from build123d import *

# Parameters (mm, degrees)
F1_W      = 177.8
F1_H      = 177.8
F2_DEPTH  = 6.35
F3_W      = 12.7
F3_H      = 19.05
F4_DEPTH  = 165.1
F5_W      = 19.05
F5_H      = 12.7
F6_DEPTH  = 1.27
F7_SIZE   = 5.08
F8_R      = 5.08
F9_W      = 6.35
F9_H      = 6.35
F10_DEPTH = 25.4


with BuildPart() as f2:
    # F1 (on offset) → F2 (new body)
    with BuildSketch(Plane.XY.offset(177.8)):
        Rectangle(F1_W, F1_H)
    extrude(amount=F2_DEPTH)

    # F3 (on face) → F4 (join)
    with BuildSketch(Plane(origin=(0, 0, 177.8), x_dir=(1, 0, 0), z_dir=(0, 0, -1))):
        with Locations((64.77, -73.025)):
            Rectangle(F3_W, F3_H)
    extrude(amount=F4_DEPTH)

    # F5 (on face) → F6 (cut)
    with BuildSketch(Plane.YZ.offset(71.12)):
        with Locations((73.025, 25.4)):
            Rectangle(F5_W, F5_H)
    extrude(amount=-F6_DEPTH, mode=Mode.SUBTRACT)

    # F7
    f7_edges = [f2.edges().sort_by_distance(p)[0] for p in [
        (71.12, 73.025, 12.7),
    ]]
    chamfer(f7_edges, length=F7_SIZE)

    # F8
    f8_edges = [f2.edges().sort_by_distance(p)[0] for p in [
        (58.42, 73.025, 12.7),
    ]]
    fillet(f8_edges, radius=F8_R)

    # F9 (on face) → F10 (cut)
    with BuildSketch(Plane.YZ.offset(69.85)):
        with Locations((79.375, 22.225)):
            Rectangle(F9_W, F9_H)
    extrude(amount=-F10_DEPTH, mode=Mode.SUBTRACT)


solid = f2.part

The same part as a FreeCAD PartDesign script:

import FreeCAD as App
import Part
import Sketcher

V = App.Vector
Q = App.Units.Quantity


def edges_at(feature, points):
    """Names of the edges that pass closest to the given points."""
    edges = feature.Shape.Edges
    near = lambda p: min(range(len(edges)), key=lambda i: edges[i].distToShape(Part.Vertex(*p))[0])
    return sorted({f"Edge{near(p) + 1}" for p in points})

doc = App.newDocument("Part")
body = doc.addObject("PartDesign::Body", "Body")

sketch1 = body.newObject("Sketcher::SketchObject", "Sketch")
sketch1.AttachmentSupport = (doc.getObject("XY_Plane"), [""])
sketch1.MapMode = "FlatFace"
sketch1.AttachmentOffset = App.Placement(V(0, 0, 7 * 25.4), App.Rotation())
sketch1.addGeometry([
    Part.LineSegment(V(-89, 89, 0), V(-89, -89, 0)),
    Part.LineSegment(V(-89, -89, 0), V(89, -89, 0)),
    Part.LineSegment(V(89, -89, 0), V(89, 89, 0)),
    Part.LineSegment(V(89, 89, 0), V(-89, 89, 0)),
], False)
sketch1.addConstraint([
    Sketcher.Constraint("Coincident", 0, 2, 1, 1),
    Sketcher.Constraint("Coincident", 1, 2, 2, 1),
    Sketcher.Constraint("Coincident", 2, 2, 3, 1),
    Sketcher.Constraint("Coincident", 3, 2, 0, 1),
    Sketcher.Constraint("Vertical", 0),
    Sketcher.Constraint("Horizontal", 1),
    Sketcher.Constraint("Vertical", 2),
    Sketcher.Constraint("Horizontal", 3),
    Sketcher.Constraint("Symmetric", 0, 2, 2, 2, -1, 1),
    Sketcher.Constraint("Equal", 3, 0),
    Sketcher.Constraint("DistanceX", 1, 1, 1, 2, Q("7 in")),
])
pad1 = body.newObject("PartDesign::Pad", "Pad")
pad1.Profile = sketch1
pad1.Length = Q("0.25 in")

sketch2 = body.newObject("Sketcher::SketchObject", "Sketch001")
sketch2.AttachmentSupport = (doc.getObject("XY_Plane"), [""])
sketch2.MapMode = "FlatFace"
sketch2.AttachmentOffset = App.Placement(V(0, 0, 7 * 25.4), App.Rotation())
sketch2.addGeometry([
    Part.LineSegment(V(58, 64, 0), V(58, 83, 0)),
    Part.LineSegment(V(58, 83, 0), V(71, 83, 0)),
    Part.LineSegment(V(71, 83, 0), V(71, 64, 0)),
    Part.LineSegment(V(71, 64, 0), V(58, 64, 0)),
], False)
sketch2.addConstraint([
    Sketcher.Constraint("Coincident", 0, 2, 1, 1),
    Sketcher.Constraint("Coincident", 1, 2, 2, 1),
    Sketcher.Constraint("Coincident", 2, 2, 3, 1),
    Sketcher.Constraint("Coincident", 3, 2, 0, 1),
    Sketcher.Constraint("Vertical", 0),
    Sketcher.Constraint("Horizontal", 1),
    Sketcher.Constraint("Vertical", 2),
    Sketcher.Constraint("Horizontal", 3),
    Sketcher.Constraint("DistanceX", 1, 1, 1, 2, Q("0.5 in")),
    Sketcher.Constraint("DistanceY", 0, 1, 0, 2, Q("0.75 in")),
    Sketcher.Constraint("DistanceX", -1, 1, 0, 2, Q("2.3 in")),
    Sketcher.Constraint("DistanceY", -1, 1, 2, 2, Q("2.5 in")),
])
pad2 = body.newObject("PartDesign::Pad", "Pad001")
pad2.Profile = sketch2
pad2.Length = Q("6.5 in")
pad2.Reversed = True

sketch3 = body.newObject("Sketcher::SketchObject", "Sketch002")
sketch3.AttachmentSupport = (doc.getObject("YZ_Plane"), [""])
sketch3.MapMode = "FlatFace"
sketch3.AttachmentOffset = App.Placement(V(0, 0, 2.8 * 25.4), App.Rotation())
sketch3.addGeometry([
    Part.LineSegment(V(64, 32, 0), V(64, 19, 0)),
    Part.LineSegment(V(64, 19, 0), V(83, 19, 0)),
    Part.LineSegment(V(83, 19, 0), V(83, 32, 0)),
    Part.LineSegment(V(83, 32, 0), V(64, 32, 0)),
], False)
sketch3.addConstraint([
    Sketcher.Constraint("Coincident", 0, 2, 1, 1),
    Sketcher.Constraint("Coincident", 1, 2, 2, 1),
    Sketcher.Constraint("Coincident", 2, 2, 3, 1),
    Sketcher.Constraint("Coincident", 3, 2, 0, 1),
    Sketcher.Constraint("Vertical", 0),
    Sketcher.Constraint("Horizontal", 1),
    Sketcher.Constraint("Vertical", 2),
    Sketcher.Constraint("Horizontal", 3),
    Sketcher.Constraint("DistanceY", 0, 2, 0, 1, Q("0.5 in")),
    Sketcher.Constraint("DistanceX", 1, 1, 1, 2, Q("0.75 in")),
    Sketcher.Constraint("DistanceX", -1, 1, 0, 2, Q("2.5 in")),
    Sketcher.Constraint("DistanceY", -1, 1, 0, 2, Q("0.75 in")),
])
pocket1 = body.newObject("PartDesign::Pocket", "Pocket")
pocket1.Profile = sketch3
pocket1.Length = Q("0.05 in")
doc.recompute()

chamfer = body.newObject("PartDesign::Chamfer", "Chamfer")
chamfer.Base = (pocket1, edges_at(pocket1, [(71.12, 73.025, 12.7)]))
chamfer.Size = Q("0.2 in")
doc.recompute()

fillet = body.newObject("PartDesign::Fillet", "Fillet")
fillet.Base = (chamfer, edges_at(chamfer, [(58.42, 73.025, 12.7)]))
fillet.Radius = Q("0.2 in")

sketch4 = body.newObject("Sketcher::SketchObject", "Sketch003")
sketch4.AttachmentSupport = (doc.getObject("YZ_Plane"), [""])
sketch4.MapMode = "FlatFace"
sketch4.AttachmentOffset = App.Placement(V(0, 0, 2.75 * 25.4), App.Rotation())
sketch4.addGeometry([
    Part.LineSegment(V(76, 25, 0), V(76, 19, 0)),
    Part.LineSegment(V(76, 19, 0), V(83, 19, 0)),
    Part.LineSegment(V(83, 19, 0), V(83, 25, 0)),
    Part.LineSegment(V(83, 25, 0), V(76, 25, 0)),
], False)
sketch4.addConstraint([
    Sketcher.Constraint("Coincident", 0, 2, 1, 1),
    Sketcher.Constraint("Coincident", 1, 2, 2, 1),
    Sketcher.Constraint("Coincident", 2, 2, 3, 1),
    Sketcher.Constraint("Coincident", 3, 2, 0, 1),
    Sketcher.Constraint("Vertical", 0),
    Sketcher.Constraint("Horizontal", 1),
    Sketcher.Constraint("Vertical", 2),
    Sketcher.Constraint("Horizontal", 3),
    Sketcher.Constraint("Equal", 3, 0),
    Sketcher.Constraint("DistanceX", -1, 1, 0, 2, Q("3 in")),
    Sketcher.Constraint("DistanceY", -1, 1, 2, 2, Q("1 in")),
    Sketcher.Constraint("DistanceX", 1, 1, 1, 2, Q("0.25 in")),
])
pocket2 = body.newObject("PartDesign::Pocket", "Pocket001")
pocket2.Profile = sketch4
pocket2.Length = Q("1 in")

doc.recompute()
